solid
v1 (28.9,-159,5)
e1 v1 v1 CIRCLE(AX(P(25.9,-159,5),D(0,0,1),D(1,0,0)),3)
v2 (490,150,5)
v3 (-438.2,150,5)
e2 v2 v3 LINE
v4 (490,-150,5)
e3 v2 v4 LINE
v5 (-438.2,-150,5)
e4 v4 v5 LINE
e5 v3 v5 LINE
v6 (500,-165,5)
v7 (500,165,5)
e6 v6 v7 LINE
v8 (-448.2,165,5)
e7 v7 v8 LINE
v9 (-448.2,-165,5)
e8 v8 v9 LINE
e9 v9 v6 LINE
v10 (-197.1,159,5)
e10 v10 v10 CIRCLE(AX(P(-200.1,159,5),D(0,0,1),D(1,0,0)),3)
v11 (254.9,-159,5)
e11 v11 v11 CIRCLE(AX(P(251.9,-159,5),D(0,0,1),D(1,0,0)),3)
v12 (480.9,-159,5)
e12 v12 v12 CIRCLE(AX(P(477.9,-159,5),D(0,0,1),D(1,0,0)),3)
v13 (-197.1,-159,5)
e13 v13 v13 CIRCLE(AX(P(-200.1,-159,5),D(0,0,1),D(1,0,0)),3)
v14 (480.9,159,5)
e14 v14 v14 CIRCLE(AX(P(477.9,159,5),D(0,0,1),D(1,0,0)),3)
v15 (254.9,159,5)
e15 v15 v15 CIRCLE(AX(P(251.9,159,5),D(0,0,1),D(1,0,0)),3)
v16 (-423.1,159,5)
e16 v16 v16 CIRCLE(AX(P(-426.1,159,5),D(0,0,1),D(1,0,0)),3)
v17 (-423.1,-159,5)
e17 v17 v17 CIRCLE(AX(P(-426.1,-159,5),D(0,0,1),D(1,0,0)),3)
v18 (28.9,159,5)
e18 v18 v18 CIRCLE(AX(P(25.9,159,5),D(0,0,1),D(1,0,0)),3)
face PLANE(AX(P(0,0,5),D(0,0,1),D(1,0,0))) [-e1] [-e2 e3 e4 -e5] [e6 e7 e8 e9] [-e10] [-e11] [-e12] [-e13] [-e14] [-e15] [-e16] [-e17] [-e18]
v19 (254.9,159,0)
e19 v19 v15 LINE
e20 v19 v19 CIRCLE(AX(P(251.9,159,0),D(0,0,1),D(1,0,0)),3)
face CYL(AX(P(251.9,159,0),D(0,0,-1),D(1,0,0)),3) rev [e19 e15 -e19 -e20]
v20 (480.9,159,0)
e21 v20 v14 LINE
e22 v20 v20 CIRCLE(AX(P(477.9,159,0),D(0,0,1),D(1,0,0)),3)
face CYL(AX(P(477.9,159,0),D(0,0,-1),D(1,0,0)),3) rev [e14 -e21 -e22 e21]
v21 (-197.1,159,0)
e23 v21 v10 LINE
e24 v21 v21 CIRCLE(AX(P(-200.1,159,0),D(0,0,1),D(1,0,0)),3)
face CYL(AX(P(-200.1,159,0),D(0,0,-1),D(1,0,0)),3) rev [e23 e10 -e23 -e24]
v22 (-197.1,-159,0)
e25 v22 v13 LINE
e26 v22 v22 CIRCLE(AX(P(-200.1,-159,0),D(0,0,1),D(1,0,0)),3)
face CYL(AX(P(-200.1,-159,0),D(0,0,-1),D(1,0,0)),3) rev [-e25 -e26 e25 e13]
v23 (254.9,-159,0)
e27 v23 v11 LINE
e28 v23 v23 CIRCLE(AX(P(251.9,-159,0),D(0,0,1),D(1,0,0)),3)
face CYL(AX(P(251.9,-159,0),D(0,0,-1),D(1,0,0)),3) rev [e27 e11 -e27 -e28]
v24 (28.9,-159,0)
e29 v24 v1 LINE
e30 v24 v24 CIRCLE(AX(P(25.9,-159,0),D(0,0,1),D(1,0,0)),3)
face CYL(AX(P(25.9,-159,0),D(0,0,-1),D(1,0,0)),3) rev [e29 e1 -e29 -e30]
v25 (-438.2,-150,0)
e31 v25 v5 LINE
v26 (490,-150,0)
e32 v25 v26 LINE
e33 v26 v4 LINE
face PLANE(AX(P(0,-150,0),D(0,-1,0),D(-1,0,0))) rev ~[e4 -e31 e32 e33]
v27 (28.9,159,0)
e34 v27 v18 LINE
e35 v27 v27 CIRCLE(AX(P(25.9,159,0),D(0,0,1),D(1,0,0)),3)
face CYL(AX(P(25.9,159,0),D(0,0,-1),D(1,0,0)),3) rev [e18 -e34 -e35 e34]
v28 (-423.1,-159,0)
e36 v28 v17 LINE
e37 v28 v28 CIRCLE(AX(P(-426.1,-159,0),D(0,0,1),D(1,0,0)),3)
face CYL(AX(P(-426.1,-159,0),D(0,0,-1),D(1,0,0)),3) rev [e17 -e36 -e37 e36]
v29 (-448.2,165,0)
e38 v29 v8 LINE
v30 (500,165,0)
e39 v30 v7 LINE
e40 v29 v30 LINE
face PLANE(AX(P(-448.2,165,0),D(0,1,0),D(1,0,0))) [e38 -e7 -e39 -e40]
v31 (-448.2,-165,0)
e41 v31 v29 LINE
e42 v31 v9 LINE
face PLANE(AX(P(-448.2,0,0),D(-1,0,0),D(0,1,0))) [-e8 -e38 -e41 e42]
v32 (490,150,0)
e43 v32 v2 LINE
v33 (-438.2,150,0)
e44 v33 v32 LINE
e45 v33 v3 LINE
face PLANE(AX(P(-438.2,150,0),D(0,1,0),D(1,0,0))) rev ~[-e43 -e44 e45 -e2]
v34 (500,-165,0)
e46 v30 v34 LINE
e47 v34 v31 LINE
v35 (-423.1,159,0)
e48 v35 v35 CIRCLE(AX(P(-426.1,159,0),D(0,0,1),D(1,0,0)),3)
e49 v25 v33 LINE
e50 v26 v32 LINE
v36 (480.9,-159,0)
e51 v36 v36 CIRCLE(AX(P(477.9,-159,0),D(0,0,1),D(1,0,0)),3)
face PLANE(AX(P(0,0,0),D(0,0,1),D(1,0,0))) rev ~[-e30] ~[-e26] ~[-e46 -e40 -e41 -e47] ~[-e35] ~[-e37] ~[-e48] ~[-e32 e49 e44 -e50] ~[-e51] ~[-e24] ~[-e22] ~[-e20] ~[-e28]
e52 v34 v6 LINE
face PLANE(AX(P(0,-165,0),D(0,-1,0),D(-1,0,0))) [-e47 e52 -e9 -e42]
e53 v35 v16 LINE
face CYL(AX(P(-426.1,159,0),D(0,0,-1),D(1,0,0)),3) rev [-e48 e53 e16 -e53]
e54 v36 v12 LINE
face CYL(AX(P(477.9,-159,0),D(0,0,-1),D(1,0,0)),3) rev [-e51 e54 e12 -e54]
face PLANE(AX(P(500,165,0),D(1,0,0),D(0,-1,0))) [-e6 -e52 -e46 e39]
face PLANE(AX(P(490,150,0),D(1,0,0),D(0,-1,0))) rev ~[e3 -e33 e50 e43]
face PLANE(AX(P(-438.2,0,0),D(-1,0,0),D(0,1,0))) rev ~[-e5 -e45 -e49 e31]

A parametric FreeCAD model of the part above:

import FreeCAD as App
import Part
import Sketcher

V = App.Vector

doc = App.newDocument("Part")
body = doc.addObject("PartDesign::Body", "Body")

# Sketch on XY plane
sketch1 = body.newObject("Sketcher::SketchObject", "Sketch")
sketch1.AttachmentSupport = (doc.getObject("XY_Plane"), [""])
sketch1.MapMode = "FlatFace"
sketch1.addGeometry(Part.LineSegment(V(-448.2, 165, 0), V(-448.2, -165, 0)), False)
sketch1.addGeometry(Part.LineSegment(V(-448.2, -165, 0), V(500, -165, 0)), False)
sketch1.addGeometry(Part.LineSegment(V(500, -165, 0), V(500, 165, 0)), False)
sketch1.addGeometry(Part.LineSegment(V(500, 165, 0), V(-448.2, 165, 0)), False)
sketch1.addGeometry(Part.LineSegment(V(-438.2, 150, 0), V(490, 150, 0)), False)
sketch1.addGeometry(Part.LineSegment(V(490, 150, 0), V(490, -150, 0)), False)
sketch1.addGeometry(Part.LineSegment(V(490, -150, 0), V(-438.2, -150, 0)), False)
sketch1.addGeometry(Part.LineSegment(V(-438.2, -150, 0), V(-438.2, 150, 0)), False)
sketch1.addGeometry(Part.Circle(V(-426.1, 159, 0), V(0, 0, 1), 3), False)
sketch1.addGeometry(Part.Circle(V(-200.1, 159, 0), V(0, 0, 1), 3), False)
sketch1.addGeometry(Part.Circle(V(-200.1, -159, 0), V(0, 0, 1), 3), False)
sketch1.addGeometry(Part.Circle(V(-426.1, -159, 0), V(0, 0, 1), 3), False)
sketch1.addGeometry(Part.Circle(V(477.9, 159, 0), V(0, 0, 1), 3), False)
sketch1.addGeometry(Part.Circle(V(25.9, 159, 0), V(0, 0, 1), 3), False)
sketch1.addGeometry(Part.Circle(V(251.9, 159, 0), V(0, 0, 1), 3), False)
sketch1.addGeometry(Part.Circle(V(251.9, -159, 0), V(0, 0, 1), 3), False)
sketch1.addGeometry(Part.Circle(V(477.9, -159, 0), V(0, 0, 1), 3), False)
sketch1.addGeometry(Part.Circle(V(25.9, -159, 0), V(0, 0, 1), 3), False)
sketch1.addConstraint(Sketcher.Constraint("Coincident", 0, 2, 1, 1))
sketch1.addConstraint(Sketcher.Constraint("Coincident", 1, 2, 2, 1))
sketch1.addConstraint(Sketcher.Constraint("Coincident", 2, 2, 3, 1))
sketch1.addConstraint(Sketcher.Constraint("Coincident", 3, 2, 0, 1))
sketch1.addConstraint(Sketcher.Constraint("Coincident", 4, 2, 5, 1))
sketch1.addConstraint(Sketcher.Constraint("Coincident", 5, 2, 6, 1))
sketch1.addConstraint(Sketcher.Constraint("Coincident", 6, 2, 7, 1))
sketch1.addConstraint(Sketcher.Constraint("Coincident", 7, 2, 4, 1))
sketch1.addConstraint(Sketcher.Constraint("Vertical", 0))
sketch1.addConstraint(Sketcher.Constraint("Horizontal", 1))
sketch1.addConstraint(Sketcher.Constraint("Vertical", 2))
sketch1.addConstraint(Sketcher.Constraint("Horizontal", 3))
sketch1.addConstraint(Sketcher.Constraint("Horizontal", 4))
sketch1.addConstraint(Sketcher.Constraint("Vertical", 5))
sketch1.addConstraint(Sketcher.Constraint("Horizontal", 6))
sketch1.addConstraint(Sketcher.Constraint("Vertical", 7))
sketch1.addConstraint(Sketcher.Constraint("Equal", 8, 9))
sketch1.addConstraint(Sketcher.Constraint("Equal", 9, 10))
sketch1.addConstraint(Sketcher.Constraint("Equal", 10, 11))
sketch1.addConstraint(Sketcher.Constraint("Equal", 11, 12))
sketch1.addConstraint(Sketcher.Constraint("Equal", 12, 13))
sketch1.addConstraint(Sketcher.Constraint("Equal", 13, 14))
sketch1.addConstraint(Sketcher.Constraint("Equal", 14, 15))
sketch1.addConstraint(Sketcher.Constraint("Equal", 15, 16))
sketch1.addConstraint(Sketcher.Constraint("Equal", 16, 17))
sketch1.addConstraint(Sketcher.Constraint("Symmetric", 9, 3, 10, 3, -1))
sketch1.addConstraint(Sketcher.Constraint("Symmetric", 8, 3, 11, 3, -1))
sketch1.addConstraint(Sketcher.Constraint("Symmetric", 14, 3, 15, 3, -1))
sketch1.addConstraint(Sketcher.Constraint("Symmetric", 12, 3, 16, 3, -1))
sketch1.addConstraint(Sketcher.Constraint("Symmetric", 13, 3, 17, 3, -1))
sketch1.addConstraint(Sketcher.Constraint("Horizontal", 8, 3, 9, 3))
sketch1.addConstraint(Sketcher.Constraint("Horizontal", 9, 3, 12, 3))
sketch1.addConstraint(Sketcher.Constraint("Horizontal", 12, 3, 13, 3))
sketch1.addConstraint(Sketcher.Constraint("Horizontal", 13, 3, 14, 3))
sketch1.addConstraint(Sketcher.Constraint("Diameter", 8, 6.0))
sketch1.addConstraint(Sketcher.Constraint("DistanceY", 0, 2, 0, 1, 330.0))
sketch1.addConstraint(Sketcher.Constraint("DistanceY", 5, 2, 5, 1, 300.0))
sketch1.addConstraint(Sketcher.Constraint("DistanceX", 1, 1, 1, 2, 948.2))
sketch1.addConstraint(Sketcher.Constraint("DistanceX", 4, 1, 4, 2, 928.2))
sketch1.addConstraint(Sketcher.Constraint("DistanceX", -1, 1, 1, 2, 500.0))
sketch1.addConstraint(Sketcher.Constraint("DistanceX", -1, 1, 4, 2, 490.0))
sketch1.addConstraint(Sketcher.Constraint("DistanceX", 8, 3, 9, 3, 226.0))
sketch1.addConstraint(Sketcher.Constraint("DistanceX", 9, 3, 13, 3, 226.0))
sketch1.addConstraint(Sketcher.Constraint("DistanceX", 14, 3, 12, 3, 226.0))
sketch1.addConstraint(Sketcher.Constraint("DistanceX", 13, 3, 14, 3, 226.0))
sketch1.addConstraint(Sketcher.Constraint("DistanceY", 0, 2, 11, 3, 6.0))
sketch1.addConstraint(Sketcher.Constraint("DistanceY", 12, 3, 2, 2, 6.0))
sketch1.addConstraint(Sketcher.Constraint("DistanceX", 0, 2, 11, 3, 22.1))
sketch1.addConstraint(Sketcher.Constraint("DistanceY", -1, 1, 4, 2, 150.0))
pad1 = body.newObject("PartDesign::Pad", "Pad")
pad1.Profile = sketch1
pad1.Length = 5

doc.recompute()
